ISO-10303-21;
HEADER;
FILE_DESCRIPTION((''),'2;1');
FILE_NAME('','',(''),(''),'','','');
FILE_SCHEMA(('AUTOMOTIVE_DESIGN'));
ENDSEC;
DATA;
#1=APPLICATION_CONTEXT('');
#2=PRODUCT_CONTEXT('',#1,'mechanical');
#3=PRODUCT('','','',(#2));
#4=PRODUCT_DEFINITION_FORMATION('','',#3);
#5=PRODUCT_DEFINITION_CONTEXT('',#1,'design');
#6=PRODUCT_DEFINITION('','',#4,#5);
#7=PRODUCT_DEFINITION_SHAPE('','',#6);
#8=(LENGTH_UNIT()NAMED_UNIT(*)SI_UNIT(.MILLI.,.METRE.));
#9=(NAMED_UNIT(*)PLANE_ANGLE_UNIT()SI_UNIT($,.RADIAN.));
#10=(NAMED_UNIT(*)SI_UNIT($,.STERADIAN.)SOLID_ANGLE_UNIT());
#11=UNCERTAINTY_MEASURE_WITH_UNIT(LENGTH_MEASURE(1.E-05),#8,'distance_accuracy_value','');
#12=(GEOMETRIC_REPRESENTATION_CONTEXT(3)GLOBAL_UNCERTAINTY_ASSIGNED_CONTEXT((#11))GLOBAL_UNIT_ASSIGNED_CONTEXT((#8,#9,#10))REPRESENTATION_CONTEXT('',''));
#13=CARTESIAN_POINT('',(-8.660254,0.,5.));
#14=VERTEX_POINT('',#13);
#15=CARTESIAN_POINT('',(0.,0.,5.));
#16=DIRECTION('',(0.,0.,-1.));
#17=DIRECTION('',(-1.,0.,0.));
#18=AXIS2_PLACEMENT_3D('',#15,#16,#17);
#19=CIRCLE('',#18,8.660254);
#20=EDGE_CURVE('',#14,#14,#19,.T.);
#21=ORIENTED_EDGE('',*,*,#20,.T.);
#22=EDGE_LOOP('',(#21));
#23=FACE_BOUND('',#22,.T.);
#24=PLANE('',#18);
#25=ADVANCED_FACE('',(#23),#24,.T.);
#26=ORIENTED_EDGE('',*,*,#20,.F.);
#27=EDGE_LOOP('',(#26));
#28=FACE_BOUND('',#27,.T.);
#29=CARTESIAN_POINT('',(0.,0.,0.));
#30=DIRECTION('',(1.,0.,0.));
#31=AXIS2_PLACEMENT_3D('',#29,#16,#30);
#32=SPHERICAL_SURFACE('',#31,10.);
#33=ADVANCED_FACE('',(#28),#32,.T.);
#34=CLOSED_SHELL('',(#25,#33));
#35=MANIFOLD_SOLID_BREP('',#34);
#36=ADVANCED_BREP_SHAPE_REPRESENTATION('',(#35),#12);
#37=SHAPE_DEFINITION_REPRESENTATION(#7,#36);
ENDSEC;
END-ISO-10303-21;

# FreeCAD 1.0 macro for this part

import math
import FreeCAD as App
import Part
import Sketcher
from FreeCAD import Vector
Q = App.Units.Quantity

doc = App.newDocument("Part")
body = doc.addObject("PartDesign::Body", "Body")

sketch1 = doc.addObject("Sketcher::SketchObject", "Sketch")
body.addObject(sketch1)
sketch1.AttachmentSupport = (doc.XZ_Plane, [""])
sketch1.MapMode = "FlatFace"
sketch1.addGeometry(Part.LineSegment(Vector(0, 10, 0), Vector(0, 5, 0)), False)
sketch1.addGeometry(Part.LineSegment(Vector(0, 5, 0), Vector(9, 5, 0)), False)
sketch1.addGeometry(Part.ArcOfCircle(Part.Circle(Vector(0, 0, 0), Vector(0, 0, 1), 10), math.radians(30), math.radians(90)), False)
sketch1.addConstraint(Sketcher.Constraint("Coincident", 0, 2, 1, 1))
sketch1.addConstraint(Sketcher.Constraint("Coincident", 1, 2, 2, 1))
sketch1.addConstraint(Sketcher.Constraint("Coincident", 2, 2, 0, 1))
sketch1.addConstraint(Sketcher.Constraint("Vertical", 0))
sketch1.addConstraint(Sketcher.Constraint("Horizontal", 1))
sketch1.addConstraint(Sketcher.Constraint("Coincident", 2, 3, -1, 1))
sketch1.addConstraint(Sketcher.Constraint("PointOnObject", 0, 2, -2))
sketch1.addConstraint(Sketcher.Constraint("Radius", 2, Q("10 mm")))
sketch1.addConstraint(Sketcher.Constraint("DistanceY", 0, 2, 0, 1, Q("5 mm")))
revolution = doc.addObject("PartDesign::Revolution", "Revolution")
body.addObject(revolution)
revolution.Profile = sketch1
revolution.ReferenceAxis = (sketch1, ["V_Axis"])
revolution.Angle = 360

doc.recompute()
